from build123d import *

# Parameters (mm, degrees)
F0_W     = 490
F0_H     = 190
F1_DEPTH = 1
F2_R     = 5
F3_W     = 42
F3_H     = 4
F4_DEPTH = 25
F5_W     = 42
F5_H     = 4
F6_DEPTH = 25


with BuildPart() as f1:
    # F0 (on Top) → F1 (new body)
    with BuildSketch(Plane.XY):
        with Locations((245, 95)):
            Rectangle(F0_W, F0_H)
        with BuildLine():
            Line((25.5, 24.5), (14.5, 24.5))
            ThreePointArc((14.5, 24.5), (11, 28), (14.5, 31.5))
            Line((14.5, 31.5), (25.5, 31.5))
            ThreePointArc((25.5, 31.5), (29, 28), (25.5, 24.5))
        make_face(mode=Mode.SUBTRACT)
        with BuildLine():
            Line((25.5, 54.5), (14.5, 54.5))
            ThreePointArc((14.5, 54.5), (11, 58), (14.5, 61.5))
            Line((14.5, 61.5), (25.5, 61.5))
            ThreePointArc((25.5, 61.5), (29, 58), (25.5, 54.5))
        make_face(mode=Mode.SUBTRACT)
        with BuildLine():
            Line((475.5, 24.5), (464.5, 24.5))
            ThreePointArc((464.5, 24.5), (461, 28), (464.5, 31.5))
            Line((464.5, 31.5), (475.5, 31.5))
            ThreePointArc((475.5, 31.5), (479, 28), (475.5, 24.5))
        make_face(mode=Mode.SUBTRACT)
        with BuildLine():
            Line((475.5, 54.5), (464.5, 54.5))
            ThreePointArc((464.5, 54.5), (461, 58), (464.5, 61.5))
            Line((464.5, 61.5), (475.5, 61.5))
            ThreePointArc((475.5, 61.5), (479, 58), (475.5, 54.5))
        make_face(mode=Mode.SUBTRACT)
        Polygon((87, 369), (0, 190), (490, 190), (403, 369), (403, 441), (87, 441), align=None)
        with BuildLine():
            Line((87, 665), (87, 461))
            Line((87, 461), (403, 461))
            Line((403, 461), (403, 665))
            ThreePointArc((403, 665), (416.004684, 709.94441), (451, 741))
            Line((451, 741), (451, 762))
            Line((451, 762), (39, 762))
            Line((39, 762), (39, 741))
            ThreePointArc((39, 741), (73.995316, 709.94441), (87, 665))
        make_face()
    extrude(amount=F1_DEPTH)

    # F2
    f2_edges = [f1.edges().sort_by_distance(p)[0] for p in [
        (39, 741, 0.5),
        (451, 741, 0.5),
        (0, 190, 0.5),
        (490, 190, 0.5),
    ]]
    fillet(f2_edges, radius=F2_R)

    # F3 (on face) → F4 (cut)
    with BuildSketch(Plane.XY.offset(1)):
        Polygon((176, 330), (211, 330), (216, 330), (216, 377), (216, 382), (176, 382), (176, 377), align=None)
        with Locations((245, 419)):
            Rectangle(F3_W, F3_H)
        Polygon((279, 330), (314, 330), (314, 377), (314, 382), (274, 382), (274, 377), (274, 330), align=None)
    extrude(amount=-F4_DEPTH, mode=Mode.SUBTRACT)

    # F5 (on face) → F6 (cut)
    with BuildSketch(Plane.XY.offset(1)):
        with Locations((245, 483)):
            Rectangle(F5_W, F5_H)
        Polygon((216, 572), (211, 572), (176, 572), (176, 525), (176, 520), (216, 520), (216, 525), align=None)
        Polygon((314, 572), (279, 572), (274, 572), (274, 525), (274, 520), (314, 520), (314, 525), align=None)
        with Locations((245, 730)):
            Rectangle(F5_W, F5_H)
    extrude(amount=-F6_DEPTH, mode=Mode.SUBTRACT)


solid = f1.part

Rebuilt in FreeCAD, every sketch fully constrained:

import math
import FreeCAD as App
import Part
import Sketcher
Q = App.Units.Quantity


def edges_at(feature, points):
    """Names of the edges that pass closest to the given points."""
    edges = feature.Shape.Edges
    near = lambda p: min(range(len(edges)), key=lambda i: edges[i].distToShape(Part.Vertex(*p))[0])
    return sorted({f"Edge{near(p) + 1}" for p in points})

doc = App.newDocument("Part")
body = doc.addObject("PartDesign::Body", "Body")
body.AllowCompound = True

# Sketch on XY plane
sketch1 = body.newObject("Sketcher::SketchObject", "Sketch")
sketch1.AttachmentSupport = (doc.getObject("XY_Plane"), [""])
sketch1.MapMode = "FlatFace"
sketch1.addGeometry(Part.LineSegment(App.Vector(0, 190, 0), App.Vector(0, 0, 0)), False)
sketch1.addGeometry(Part.LineSegment(App.Vector(0, 0, 0), App.Vector(490, 0, 0)), False)
sketch1.addGeometry(Part.LineSegment(App.Vector(490, 0, 0), App.Vector(490, 190, 0)), False)
sketch1.addGeometry(Part.LineSegment(App.Vector(490, 190, 0), App.Vector(403, 369, 0)), False)
sketch1.addGeometry(Part.LineSegment(App.Vector(403, 369, 0), App.Vector(403, 441, 0)), False)
sketch1.addGeometry(Part.LineSegment(App.Vector(403, 441, 0), App.Vector(87, 441, 0)), False)
sketch1.addGeometry(Part.LineSegment(App.Vector(87, 441, 0), App.Vector(87, 369, 0)), False)
sketch1.addGeometry(Part.LineSegment(App.Vector(87, 369, 0), App.Vector(0, 190, 0)), False)
sketch1.addGeometry(Part.ArcOfCircle(Part.Circle(App.Vector(25.5, 28, 0), App.Vector(0, 0, 1), 3.5), math.radians(-90), math.radians(90)), False)
sketch1.addGeometry(Part.LineSegment(App.Vector(25.5, 24.5, 0), App.Vector(14.5, 24.5, 0)), False)
sketch1.addGeometry(Part.ArcOfCircle(Part.Circle(App.Vector(14.5, 28, 0), App.Vector(0, 0, 1), 3.5), math.radians(90), math.radians(270)), False)
sketch1.addGeometry(Part.LineSegment(App.Vector(14.5, 31.5, 0), App.Vector(25.5, 31.5, 0)), False)
sketch1.addGeometry(Part.ArcOfCircle(Part.Circle(App.Vector(475.5, 28, 0), App.Vector(0, 0, 1), 3.5), math.radians(-90), math.radians(90)), False)
sketch1.addGeometry(Part.LineSegment(App.Vector(475.5, 24.5, 0), App.Vector(464.5, 24.5, 0)), False)
sketch1.addGeometry(Part.ArcOfCircle(Part.Circle(App.Vector(464.5, 28, 0), App.Vector(0, 0, 1), 3.5), math.radians(90), math.radians(270)), False)
sketch1.addGeometry(Part.LineSegment(App.Vector(464.5, 31.5, 0), App.Vector(475.5, 31.5, 0)), False)
sketch1.addGeometry(Part.ArcOfCircle(Part.Circle(App.Vector(25.5, 58, 0), App.Vector(0, 0, 1), 3.5), math.radians(-90), math.radians(90)), False)
sketch1.addGeometry(Part.LineSegment(App.Vector(25.5, 54.5, 0), App.Vector(14.5, 54.5, 0)), False)
sketch1.addGeometry(Part.ArcOfCircle(Part.Circle(App.Vector(14.5, 58, 0), App.Vector(0, 0, 1), 3.5), math.radians(90), math.radians(270)), False)
sketch1.addGeometry(Part.LineSegment(App.Vector(14.5, 61.5, 0), App.Vector(25.5, 61.5, 0)), False)
sketch1.addGeometry(Part.ArcOfCircle(Part.Circle(App.Vector(475.5, 58, 0), App.Vector(0, 0, 1), 3.5), math.radians(-90), math.radians(90)), False)
sketch1.addGeometry(Part.LineSegment(App.Vector(475.5, 54.5, 0), App.Vector(464.5, 54.5, 0)), False)
sketch1.addGeometry(Part.ArcOfCircle(Part.Circle(App.Vector(464.5, 58, 0), App.Vector(0, 0, 1), 3.5), math.radians(90), math.radians(270)), False)
sketch1.addGeometry(Part.LineSegment(App.Vector(464.5, 61.5, 0), App.Vector(475.5, 61.5, 0)), False)
sketch1.addGeometry(Part.LineSegment(App.Vector(87, 665, 0), App.Vector(87, 461, 0)), False)
sketch1.addGeometry(Part.LineSegment(App.Vector(87, 461, 0), App.Vector(403, 461, 0)), False)
sketch1.addGeometry(Part.LineSegment(App.Vector(403, 461, 0), App.Vector(403, 665, 0)), False)
sketch1.addGeometry(Part.ArcOfCircle(Part.Circle(App.Vector(487.2, 665, 0), App.Vector(0, 0, 1), 84.2), math.radians(115), math.radians(180)), False)
sketch1.addGeometry(Part.LineSegment(App.Vector(451, 741, 0), App.Vector(451, 762, 0)), False)
sketch1.addGeometry(Part.LineSegment(App.Vector(451, 762, 0), App.Vector(39, 762, 0)), False)
sketch1.addGeometry(Part.LineSegment(App.Vector(39, 762, 0), App.Vector(39, 741, 0)), False)
sketch1.addGeometry(Part.ArcOfCircle(Part.Circle(App.Vector(2.8, 665, 0), App.Vector(0, 0, 1), 84.2), math.radians(0), math.radians(65)), False)
sketch1.addConstraint(Sketcher.Constraint("Coincident", 0, 2, 1, 1))
sketch1.addConstraint(Sketcher.Constraint("Coincident", 1, 2, 2, 1))
sketch1.addConstraint(Sketcher.Constraint("Coincident", 2, 2, 3, 1))
sketch1.addConstraint(Sketcher.Constraint("Coincident", 3, 2, 4, 1))
sketch1.addConstraint(Sketcher.Constraint("Coincident", 4, 2, 5, 1))
sketch1.addConstraint(Sketcher.Constraint("Coincident", 5, 2, 6, 1))
sketch1.addConstraint(Sketcher.Constraint("Coincident", 6, 2, 7, 1))
sketch1.addConstraint(Sketcher.Constraint("Coincident", 7, 2, 0, 1))
sketch1.addConstraint(Sketcher.Constraint("Tangent", 8, 1, 9, 1))
sketch1.addConstraint(Sketcher.Constraint("Tangent", 9, 2, 10, 2))
sketch1.addConstraint(Sketcher.Constraint("Tangent", 10, 1, 11, 1))
sketch1.addConstraint(Sketcher.Constraint("Tangent", 11, 2, 8, 2))
sketch1.addConstraint(Sketcher.Constraint("Tangent", 12, 1, 13, 1))
sketch1.addConstraint(Sketcher.Constraint("Tangent", 13, 2, 14, 2))
sketch1.addConstraint(Sketcher.Constraint("Tangent", 14, 1, 15, 1))
sketch1.addConstraint(Sketcher.Constraint("Tangent", 15, 2, 12, 2))
sketch1.addConstraint(Sketcher.Constraint("Tangent", 16, 1, 17, 1))
sketch1.addConstraint(Sketcher.Constraint("Tangent", 17, 2, 18, 2))
sketch1.addConstraint(Sketcher.Constraint("Tangent", 18, 1, 19, 1))
sketch1.addConstraint(Sketcher.Constraint("Tangent", 19, 2, 16, 2))
sketch1.addConstraint(Sketcher.Constraint("Tangent", 20, 1, 21, 1))
sketch1.addConstraint(Sketcher.Constraint("Tangent", 21, 2, 22, 2))
sketch1.addConstraint(Sketcher.Constraint("Tangent", 22, 1, 23, 1))
sketch1.addConstraint(Sketcher.Constraint("Tangent", 23, 2, 20, 2))
sketch1.addConstraint(Sketcher.Constraint("Coincident", 24, 2, 25, 1))
sketch1.addConstraint(Sketcher.Constraint("Coincident", 25, 2, 26, 1))
sketch1.addConstraint(Sketcher.Constraint("Tangent", 26, 2, 27, 2))
sketch1.addConstraint(Sketcher.Constraint("Coincident", 27, 1, 28, 1))
sketch1.addConstraint(Sketcher.Constraint("Coincident", 28, 2, 29, 1))
sketch1.addConstraint(Sketcher.Constraint("Coincident", 29, 2, 30, 1))
sketch1.addConstraint(Sketcher.Constraint("Coincident", 30, 2, 31, 2))
sketch1.addConstraint(Sketcher.Constraint("Tangent", 31, 1, 24, 1))
sketch1.addConstraint(Sketcher.Constraint("Vertical", 0))
sketch1.addConstraint(Sketcher.Constraint("Horizontal", 1))
sketch1.addConstraint(Sketcher.Constraint("Vertical", 2))
sketch1.addConstraint(Sketcher.Constraint("Vertical", 4))
sketch1.addConstraint(Sketcher.Constraint("Horizontal", 5))
sketch1.addConstraint(Sketcher.Constraint("Vertical", 6))
sketch1.addConstraint(Sketcher.Constraint("Horizontal", 9))
sketch1.addConstraint(Sketcher.Constraint("Horizontal", 11))
sketch1.addConstraint(Sketcher.Constraint("Horizontal", 13))
sketch1.addConstraint(Sketcher.Constraint("Horizontal", 15))
sketch1.addConstraint(Sketcher.Constraint("Horizontal", 17))
sketch1.addConstraint(Sketcher.Constraint("Horizontal", 19))
sketch1.addConstraint(Sketcher.Constraint("Horizontal", 21))
sketch1.addConstraint(Sketcher.Constraint("Horizontal", 23))
sketch1.addConstraint(Sketcher.Constraint("Vertical", 24))
sketch1.addConstraint(Sketcher.Constraint("Horizontal", 25))
sketch1.addConstraint(Sketcher.Constraint("Vertical", 26))
sketch1.addConstraint(Sketcher.Constraint("Vertical", 28))
sketch1.addConstraint(Sketcher.Constraint("Horizontal", 29))
sketch1.addConstraint(Sketcher.Constraint("Vertical", 30))
sketch1.addConstraint(Sketcher.Constraint("Coincident", 0, 2, -1, 1))
sketch1.addConstraint(Sketcher.Constraint("Equal", 10, 12))
sketch1.addConstraint(Sketcher.Constraint("Equal", 14, 16))
sketch1.addConstraint(Sketcher.Constraint("Equal", 18, 20))
sketch1.addConstraint(Sketcher.Constraint("Equal", 27, 31))
sketch1.addConstraint(Sketcher.Constraint("Horizontal", 10, 3, 12, 3))
sketch1.addConstraint(Sketcher.Constraint("Horizontal", 18, 3, 20, 3))
sketch1.addConstraint(Sketcher.Constraint("Horizontal", 27, 3, 31, 3))
sketch1.addConstraint(Sketcher.Constraint("Horizontal", 3, 2, 6, 2))
sketch1.addConstraint(Sketcher.Constraint("Horizontal", 2, 2, 7, 2))
sketch1.addConstraint(Sketcher.Constraint("Horizontal", 27, 1, 30, 2))
sketch1.addConstraint(Sketcher.Constraint("Vertical", 8, 3, 16, 3))
sketch1.addConstraint(Sketcher.Constraint("Vertical", 10, 3, 18, 3))
sketch1.addConstraint(Sketcher.Constraint("Vertical", 12, 3, 20, 3))
sketch1.addConstraint(Sketcher.Constraint("Vertical", 14, 3, 22, 3))
sketch1.addConstraint(Sketcher.Constraint("Vertical", 6, 2, 24, 2))
sketch1.addConstraint(Sketcher.Constraint("Vertical", 4, 2, 25, 2))
sketch1.addConstraint(Sketcher.Constraint("Equal", 11, 13))
sketch1.addConstraint(Sketcher.Constraint("Equal", 3, 7))
sketch1.addConstraint(Sketcher.Constraint("Radius", 8, Q("3.5 mm")))
sketch1.addConstraint(Sketcher.Constraint("DistanceX", 1, 1, 1, 2, Q("490 mm")))
sketch1.addConstraint(Sketcher.Constraint("DistanceX", 5, 2, 5, 1, Q("316 mm")))
sketch1.addConstraint(Sketcher.Constraint("DistanceX", 9, 2, 9, 1, Q("11 mm")))
sketch1.addConstraint(Sketcher.Constraint("DistanceX", 29, 2, 29, 1, Q("412 mm")))
sketch1.addConstraint(Sketcher.Constraint("DistanceY", 0, 2, 0, 1, Q("190 mm")))
sketch1.addConstraint(Sketcher.Constraint("DistanceY", 4, 1, 4, 2, Q("72 mm")))
sketch1.addConstraint(Sketcher.Constraint("DistanceY", 24, 2, 24, 1, Q("204 mm")))
sketch1.addConstraint(Sketcher.Constraint("DistanceY", 28, 1, 28, 2, Q("21 mm")))
sketch1.addConstraint(Sketcher.Constraint("DistanceY", -1, 1, 8, 3, Q("28 mm")))
sketch1.addConstraint(Sketcher.Constraint("DistanceY", -1, 1, 16, 3, Q("58 mm")))
sketch1.addConstraint(Sketcher.Constraint("DistanceY", -1, 1, 27, 3, Q("665 mm")))
sketch1.addConstraint(Sketcher.Constraint("DistanceY", -1, 1, 3, 2, Q("369 mm")))
sketch1.addConstraint(Sketcher.Constraint("DistanceY", -1, 1, 27, 1, Q("741 mm")))
sketch1.addConstraint(Sketcher.Constraint("DistanceX", 8, 3, 12, 3, Q("450 mm")))
sketch1.addConstraint(Sketcher.Constraint("DistanceX", -1, 1, 8, 3, Q("25.5 mm")))
pad1 = body.newObject("PartDesign::Pad", "Pad")
pad1.Profile = sketch1
pad1.Length = 1
doc.recompute()

fillet = body.newObject("PartDesign::Fillet", "Fillet")
fillet.Base = (pad1, edges_at(pad1, [
    (39, 741, 0.5),
    (451, 741, 0.5),
    (0, 190, 0.5),
    (490, 190, 0.5),
]))
fillet.Radius = 5

# Sketch on XY plane
sketch2 = body.newObject("Sketcher::SketchObject", "Sketch001")
sketch2.AttachmentSupport = (doc.getObject("XY_Plane"), [""])
sketch2.MapMode = "FlatFace"
sketch2.AttachmentOffset = App.Placement(App.Vector(0, 0, 1), App.Rotation())
sketch2.addGeometry(Part.LineSegment(App.Vector(176, 330, 0), App.Vector(216, 330, 0)), False)
sketch2.addGeometry(Part.LineSegment(App.Vector(216, 330, 0), App.Vector(216, 382, 0)), False)
sketch2.addGeometry(Part.LineSegment(App.Vector(216, 382, 0), App.Vector(176, 382, 0)), False)
sketch2.addGeometry(Part.LineSegment(App.Vector(176, 382, 0), App.Vector(176, 330, 0)), False)
sketch2.addGeometry(Part.LineSegment(App.Vector(224, 421, 0), App.Vector(224, 417, 0)), False)
sketch2.addGeometry(Part.LineSegment(App.Vector(224, 417, 0), App.Vector(266, 417, 0)), False)
sketch2.addGeometry(Part.LineSegment(App.Vector(266, 417, 0), App.Vector(266, 421, 0)), False)
sketch2.addGeometry(Part.LineSegment(App.Vector(266, 421, 0), App.Vector(224, 421, 0)), False)
sketch2.addGeometry(Part.LineSegment(App.Vector(314, 330, 0), App.Vector(314, 382, 0)), False)
sketch2.addGeometry(Part.LineSegment(App.Vector(314, 382, 0), App.Vector(274, 382, 0)), False)
sketch2.addGeometry(Part.LineSegment(App.Vector(274, 382, 0), App.Vector(274, 330, 0)), False)
sketch2.addGeometry(Part.LineSegment(App.Vector(274, 330, 0), App.Vector(314, 330, 0)), False)
sketch2.addConstraint(Sketcher.Constraint("Coincident", 0, 2, 1, 1))
sketch2.addConstraint(Sketcher.Constraint("Coincident", 1, 2, 2, 1))
sketch2.addConstraint(Sketcher.Constraint("Coincident", 2, 2, 3, 1))
sketch2.addConstraint(Sketcher.Constraint("Coincident", 3, 2, 0, 1))
sketch2.addConstraint(Sketcher.Constraint("Coincident", 4, 2, 5, 1))
sketch2.addConstraint(Sketcher.Constraint("Coincident", 5, 2, 6, 1))
sketch2.addConstraint(Sketcher.Constraint("Coincident", 6, 2, 7, 1))
sketch2.addConstraint(Sketcher.Constraint("Coincident", 7, 2, 4, 1))
sketch2.addConstraint(Sketcher.Constraint("Coincident", 8, 2, 9, 1))
sketch2.addConstraint(Sketcher.Constraint("Coincident", 9, 2, 10, 1))
sketch2.addConstraint(Sketcher.Constraint("Coincident", 10, 2, 11, 1))
sketch2.addConstraint(Sketcher.Constraint("Coincident", 11, 2, 8, 1))
sketch2.addConstraint(Sketcher.Constraint("Horizontal", 0))
sketch2.addConstraint(Sketcher.Constraint("Vertical", 1))
sketch2.addConstraint(Sketcher.Constraint("Horizontal", 2))
sketch2.addConstraint(Sketcher.Constraint("Vertical", 3))
sketch2.addConstraint(Sketcher.Constraint("Vertical", 4))
sketch2.addConstraint(Sketcher.Constraint("Horizontal", 5))
sketch2.addConstraint(Sketcher.Constraint("Vertical", 6))
sketch2.addConstraint(Sketcher.Constraint("Horizontal", 7))
sketch2.addConstraint(Sketcher.Constraint("Vertical", 8))
sketch2.addConstraint(Sketcher.Constraint("Horizontal", 9))
sketch2.addConstraint(Sketcher.Constraint("Vertical", 10))
sketch2.addConstraint(Sketcher.Constraint("Horizontal", 11))
sketch2.addConstraint(Sketcher.Constraint("Horizontal", 2, 2, 8, 2))
sketch2.addConstraint(Sketcher.Constraint("Horizontal", 3, 2, 10, 2))
sketch2.addConstraint(Sketcher.Constraint("Equal", 2, 9))
sketch2.addConstraint(Sketcher.Constraint("DistanceX", 0, 1, 0, 2, Q("40 mm")))
sketch2.addConstraint(Sketcher.Constraint("DistanceX", 5, 1, 5, 2, Q("42 mm")))
sketch2.addConstraint(Sketcher.Constraint("DistanceY", 1, 1, 1, 2, Q("52 mm")))
sketch2.addConstraint(Sketcher.Constraint("DistanceY", 4, 2, 4, 1, Q("4 mm")))
sketch2.addConstraint(Sketcher.Constraint("DistanceX", -1, 1, 0, 2, Q("216 mm")))
sketch2.addConstraint(Sketcher.Constraint("DistanceY", -1, 1, 0, 2, Q("330 mm")))
sketch2.addConstraint(Sketcher.Constraint("DistanceX", -1, 1, 4, 2, Q("224 mm")))
sketch2.addConstraint(Sketcher.Constraint("DistanceY", -1, 1, 4, 2, Q("417 mm")))
sketch2.addConstraint(Sketcher.Constraint("DistanceX", -1, 1, 8, 2, Q("314 mm")))
pocket1 = body.newObject("PartDesign::Pocket", "Pocket")
pocket1.Profile = sketch2
pocket1.Length = 25

# Sketch on XY plane
sketch3 = body.newObject("Sketcher::SketchObject", "Sketch002")
sketch3.AttachmentSupport = (doc.getObject("XY_Plane"), [""])
sketch3.MapMode = "FlatFace"
sketch3.AttachmentOffset = App.Placement(App.Vector(0, 0, 1), App.Rotation())
sketch3.addGeometry(Part.LineSegment(App.Vector(224, 485, 0), App.Vector(224, 481, 0)), False)
sketch3.addGeometry(Part.LineSegment(App.Vector(224, 481, 0), App.Vector(266, 481, 0)), False)
sketch3.addGeometry(Part.LineSegment(App.Vector(266, 481, 0), App.Vector(266, 485, 0)), False)
sketch3.addGeometry(Part.LineSegment(App.Vector(266, 485, 0), App.Vector(224, 485, 0)), False)
sketch3.addGeometry(Part.LineSegment(App.Vector(216, 572, 0), App.Vector(176, 572, 0)), False)
sketch3.addGeometry(Part.LineSegment(App.Vector(176, 572, 0), App.Vector(176, 520, 0)), False)
sketch3.addGeometry(Part.LineSegment(App.Vector(176, 520, 0), App.Vector(216, 520, 0)), False)
sketch3.addGeometry(Part.LineSegment(App.Vector(216, 520, 0), App.Vector(216, 572, 0)), False)
sketch3.addGeometry(Part.LineSegment(App.Vector(314, 572, 0), App.Vector(274, 572, 0)), False)
sketch3.addGeometry(Part.LineSegment(App.Vector(274, 572, 0), App.Vector(274, 520, 0)), False)
sketch3.addGeometry(Part.LineSegment(App.Vector(274, 520, 0), App.Vector(314, 520, 0)), False)
sketch3.addGeometry(Part.LineSegment(App.Vector(314, 520, 0), App.Vector(314, 572, 0)), False)
sketch3.addGeometry(Part.LineSegment(App.Vector(224, 732, 0), App.Vector(224, 728, 0)), False)
sketch3.addGeometry(Part.LineSegment(App.Vector(224, 728, 0), App.Vector(266, 728, 0)), False)
sketch3.addGeometry(Part.LineSegment(App.Vector(266, 728, 0), App.Vector(266, 732, 0)), False)
sketch3.addGeometry(Part.LineSegment(App.Vector(266, 732, 0), App.Vector(224, 732, 0)), False)
sketch3.addConstraint(Sketcher.Constraint("Coincident", 0, 2, 1, 1))
sketch3.addConstraint(Sketcher.Constraint("Coincident", 1, 2, 2, 1))
sketch3.addConstraint(Sketcher.Constraint("Coincident", 2, 2, 3, 1))
sketch3.addConstraint(Sketcher.Constraint("Coincident", 3, 2, 0, 1))
sketch3.addConstraint(Sketcher.Constraint("Coincident", 4, 2, 5, 1))
sketch3.addConstraint(Sketcher.Constraint("Coincident", 5, 2, 6, 1))
sketch3.addConstraint(Sketcher.Constraint("Coincident", 6, 2, 7, 1))
sketch3.addConstraint(Sketcher.Constraint("Coincident", 7, 2, 4, 1))
sketch3.addConstraint(Sketcher.Constraint("Coincident", 8, 2, 9, 1))
sketch3.addConstraint(Sketcher.Constraint("Coincident", 9, 2, 10, 1))
sketch3.addConstraint(Sketcher.Constraint("Coincident", 10, 2, 11, 1))
sketch3.addConstraint(Sketcher.Constraint("Coincident", 11, 2, 8, 1))
sketch3.addConstraint(Sketcher.Constraint("Coincident", 12, 2, 13, 1))
sketch3.addConstraint(Sketcher.Constraint("Coincident", 13, 2, 14, 1))
sketch3.addConstraint(Sketcher.Constraint("Coincident", 14, 2, 15, 1))
sketch3.addConstraint(Sketcher.Constraint("Coincident", 15, 2, 12, 1))
sketch3.addConstraint(Sketcher.Constraint("Vertical", 0))
sketch3.addConstraint(Sketcher.Constraint("Horizontal", 1))
sketch3.addConstraint(Sketcher.Constraint("Vertical", 2))
sketch3.addConstraint(Sketcher.Constraint("Horizontal", 3))
sketch3.addConstraint(Sketcher.Constraint("Horizontal", 4))
sketch3.addConstraint(Sketcher.Constraint("Vertical", 5))
sketch3.addConstraint(Sketcher.Constraint("Horizontal", 6))
sketch3.addConstraint(Sketcher.Constraint("Vertical", 7))
sketch3.addConstraint(Sketcher.Constraint("Horizontal", 8))
sketch3.addConstraint(Sketcher.Constraint("Vertical", 9))
sketch3.addConstraint(Sketcher.Constraint("Horizontal", 10))
sketch3.addConstraint(Sketcher.Constraint("Vertical", 11))
sketch3.addConstraint(Sketcher.Constraint("Vertical", 12))
sketch3.addConstraint(Sketcher.Constraint("Horizontal", 13))
sketch3.addConstraint(Sketcher.Constraint("Vertical", 14))
sketch3.addConstraint(Sketcher.Constraint("Horizontal", 15))
sketch3.addConstraint(Sketcher.Constraint("Horizontal", 7, 2, 8, 2))
sketch3.addConstraint(Sketcher.Constraint("Horizontal", 6, 2, 9, 2))
sketch3.addConstraint(Sketcher.Constraint("Vertical", 3, 2, 12, 2))
sketch3.addConstraint(Sketcher.Constraint("Vertical", 2, 2, 13, 2))
sketch3.addConstraint(Sketcher.Constraint("Equal", 6, 8))
sketch3.addConstraint(Sketcher.Constraint("Equal", 2, 12))
sketch3.addConstraint(Sketcher.Constraint("DistanceX", 1, 1, 1, 2, Q("42 mm")))
sketch3.addConstraint(Sketcher.Constraint("DistanceX", 4, 2, 4, 1, Q("40 mm")))
sketch3.addConstraint(Sketcher.Constraint("DistanceY", 0, 2, 0, 1, Q("4 mm")))
sketch3.addConstraint(Sketcher.Constraint("DistanceY", 5, 2, 5, 1, Q("52 mm")))
sketch3.addConstraint(Sketcher.Constraint("DistanceX", -1, 1, 0, 2, Q("224 mm")))
sketch3.addConstraint(Sketcher.Constraint("DistanceY", -1, 1, 0, 2, Q("481 mm")))
sketch3.addConstraint(Sketcher.Constraint("DistanceX", -1, 1, 4, 2, Q("176 mm")))
sketch3.addConstraint(Sketcher.Constraint("DistanceY", -1, 1, 4, 2, Q("572 mm")))
sketch3.addConstraint(Sketcher.Constraint("DistanceX", -1, 1, 8, 2, Q("274 mm")))
sketch3.addConstraint(Sketcher.Constraint("DistanceY", -1, 1, 12, 2, Q("728 mm")))
pocket2 = body.newObject("PartDesign::Pocket", "Pocket001")
pocket2.Profile = sketch3
pocket2.Length = 25

doc.recompute()
